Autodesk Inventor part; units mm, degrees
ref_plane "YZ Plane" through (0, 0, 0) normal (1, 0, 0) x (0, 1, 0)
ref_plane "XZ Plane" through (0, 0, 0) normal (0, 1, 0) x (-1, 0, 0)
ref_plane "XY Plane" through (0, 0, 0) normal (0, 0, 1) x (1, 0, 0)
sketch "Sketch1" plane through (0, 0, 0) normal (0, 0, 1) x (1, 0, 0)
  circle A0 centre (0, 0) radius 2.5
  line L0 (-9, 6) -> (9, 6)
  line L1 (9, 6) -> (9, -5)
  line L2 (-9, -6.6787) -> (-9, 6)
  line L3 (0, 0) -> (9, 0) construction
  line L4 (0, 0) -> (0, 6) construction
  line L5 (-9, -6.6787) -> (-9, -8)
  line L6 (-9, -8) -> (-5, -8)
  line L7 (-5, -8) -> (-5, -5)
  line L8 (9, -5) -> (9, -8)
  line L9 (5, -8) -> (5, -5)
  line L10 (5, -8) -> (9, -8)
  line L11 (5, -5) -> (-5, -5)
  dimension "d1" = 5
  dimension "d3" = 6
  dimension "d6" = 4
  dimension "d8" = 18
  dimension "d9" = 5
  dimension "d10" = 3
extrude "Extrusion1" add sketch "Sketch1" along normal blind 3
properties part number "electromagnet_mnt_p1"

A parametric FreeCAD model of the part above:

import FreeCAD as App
import Part
import Sketcher
from FreeCAD import Vector


def add_polygon(sketch, points):
    """Adds a closed chain of lines whose ends are joined by coincident constraints."""
    first, n = sketch.GeometryCount, len(points)
    for a, b in zip(points, points[1:] + points[:1]):
        sketch.addGeometry(Part.LineSegment(App.Vector(*a, 0), App.Vector(*b, 0)), False)
    for i in range(n):
        sketch.addConstraint(Sketcher.Constraint("Coincident", first + i, 2, first + (i + 1) % n, 1))

doc = App.newDocument("Part")
body = doc.addObject("PartDesign::Body", "Body")

sketch1 = doc.addObject("Sketcher::SketchObject", "Sketch")
body.addObject(sketch1)
sketch1.AttachmentSupport = (doc.XY_Plane, [""])
sketch1.MapMode = "FlatFace"
add_polygon(sketch1, [(9, 6), (-9, 6), (-9, -8), (-5, -8), (-5, -5), (5, -5), (5, -8), (9, -8)])
sketch1.addGeometry(Part.Circle(Vector(0, 0, 0), Vector(0, 0, 1), 2.5), False)
sketch1.addConstraint(Sketcher.Constraint("Horizontal", 0))
sketch1.addConstraint(Sketcher.Constraint("Vertical", 1))
sketch1.addConstraint(Sketcher.Constraint("Horizontal", 2))
sketch1.addConstraint(Sketcher.Constraint("Vertical", 3))
sketch1.addConstraint(Sketcher.Constraint("Horizontal", 4))
sketch1.addConstraint(Sketcher.Constraint("Vertical", 5))
sketch1.addConstraint(Sketcher.Constraint("Horizontal", 6))
sketch1.addConstraint(Sketcher.Constraint("Vertical", 7))
sketch1.addConstraint(Sketcher.Constraint("Coincident", 8, 3, -1, 1))
sketch1.addConstraint(Sketcher.Constraint("Symmetric", 2, 2, 5, 2, -2))
sketch1.addConstraint(Sketcher.Constraint("Equal", 2, 6))
sketch1.addConstraint(Sketcher.Constraint("Diameter", 8, 5.0))
sketch1.addConstraint(Sketcher.Constraint("DistanceX", 0, 2, 0, 1, 18.0))
sketch1.addConstraint(Sketcher.Constraint("DistanceX", 2, 1, 2, 2, 4.0))
sketch1.addConstraint(Sketcher.Constraint("DistanceY", 3, 1, 3, 2, 3.0))
sketch1.addConstraint(Sketcher.Constraint("DistanceY", -1, 1, 0, 2, 6.0))
sketch1.addConstraint(Sketcher.Constraint("DistanceY", 3, 2, -1, 1, 5.0))
pad1 = doc.addObject("PartDesign::Pad", "Pad")
body.addObject(pad1)
pad1.Profile = sketch1
pad1.Length = 3

doc.recompute()
